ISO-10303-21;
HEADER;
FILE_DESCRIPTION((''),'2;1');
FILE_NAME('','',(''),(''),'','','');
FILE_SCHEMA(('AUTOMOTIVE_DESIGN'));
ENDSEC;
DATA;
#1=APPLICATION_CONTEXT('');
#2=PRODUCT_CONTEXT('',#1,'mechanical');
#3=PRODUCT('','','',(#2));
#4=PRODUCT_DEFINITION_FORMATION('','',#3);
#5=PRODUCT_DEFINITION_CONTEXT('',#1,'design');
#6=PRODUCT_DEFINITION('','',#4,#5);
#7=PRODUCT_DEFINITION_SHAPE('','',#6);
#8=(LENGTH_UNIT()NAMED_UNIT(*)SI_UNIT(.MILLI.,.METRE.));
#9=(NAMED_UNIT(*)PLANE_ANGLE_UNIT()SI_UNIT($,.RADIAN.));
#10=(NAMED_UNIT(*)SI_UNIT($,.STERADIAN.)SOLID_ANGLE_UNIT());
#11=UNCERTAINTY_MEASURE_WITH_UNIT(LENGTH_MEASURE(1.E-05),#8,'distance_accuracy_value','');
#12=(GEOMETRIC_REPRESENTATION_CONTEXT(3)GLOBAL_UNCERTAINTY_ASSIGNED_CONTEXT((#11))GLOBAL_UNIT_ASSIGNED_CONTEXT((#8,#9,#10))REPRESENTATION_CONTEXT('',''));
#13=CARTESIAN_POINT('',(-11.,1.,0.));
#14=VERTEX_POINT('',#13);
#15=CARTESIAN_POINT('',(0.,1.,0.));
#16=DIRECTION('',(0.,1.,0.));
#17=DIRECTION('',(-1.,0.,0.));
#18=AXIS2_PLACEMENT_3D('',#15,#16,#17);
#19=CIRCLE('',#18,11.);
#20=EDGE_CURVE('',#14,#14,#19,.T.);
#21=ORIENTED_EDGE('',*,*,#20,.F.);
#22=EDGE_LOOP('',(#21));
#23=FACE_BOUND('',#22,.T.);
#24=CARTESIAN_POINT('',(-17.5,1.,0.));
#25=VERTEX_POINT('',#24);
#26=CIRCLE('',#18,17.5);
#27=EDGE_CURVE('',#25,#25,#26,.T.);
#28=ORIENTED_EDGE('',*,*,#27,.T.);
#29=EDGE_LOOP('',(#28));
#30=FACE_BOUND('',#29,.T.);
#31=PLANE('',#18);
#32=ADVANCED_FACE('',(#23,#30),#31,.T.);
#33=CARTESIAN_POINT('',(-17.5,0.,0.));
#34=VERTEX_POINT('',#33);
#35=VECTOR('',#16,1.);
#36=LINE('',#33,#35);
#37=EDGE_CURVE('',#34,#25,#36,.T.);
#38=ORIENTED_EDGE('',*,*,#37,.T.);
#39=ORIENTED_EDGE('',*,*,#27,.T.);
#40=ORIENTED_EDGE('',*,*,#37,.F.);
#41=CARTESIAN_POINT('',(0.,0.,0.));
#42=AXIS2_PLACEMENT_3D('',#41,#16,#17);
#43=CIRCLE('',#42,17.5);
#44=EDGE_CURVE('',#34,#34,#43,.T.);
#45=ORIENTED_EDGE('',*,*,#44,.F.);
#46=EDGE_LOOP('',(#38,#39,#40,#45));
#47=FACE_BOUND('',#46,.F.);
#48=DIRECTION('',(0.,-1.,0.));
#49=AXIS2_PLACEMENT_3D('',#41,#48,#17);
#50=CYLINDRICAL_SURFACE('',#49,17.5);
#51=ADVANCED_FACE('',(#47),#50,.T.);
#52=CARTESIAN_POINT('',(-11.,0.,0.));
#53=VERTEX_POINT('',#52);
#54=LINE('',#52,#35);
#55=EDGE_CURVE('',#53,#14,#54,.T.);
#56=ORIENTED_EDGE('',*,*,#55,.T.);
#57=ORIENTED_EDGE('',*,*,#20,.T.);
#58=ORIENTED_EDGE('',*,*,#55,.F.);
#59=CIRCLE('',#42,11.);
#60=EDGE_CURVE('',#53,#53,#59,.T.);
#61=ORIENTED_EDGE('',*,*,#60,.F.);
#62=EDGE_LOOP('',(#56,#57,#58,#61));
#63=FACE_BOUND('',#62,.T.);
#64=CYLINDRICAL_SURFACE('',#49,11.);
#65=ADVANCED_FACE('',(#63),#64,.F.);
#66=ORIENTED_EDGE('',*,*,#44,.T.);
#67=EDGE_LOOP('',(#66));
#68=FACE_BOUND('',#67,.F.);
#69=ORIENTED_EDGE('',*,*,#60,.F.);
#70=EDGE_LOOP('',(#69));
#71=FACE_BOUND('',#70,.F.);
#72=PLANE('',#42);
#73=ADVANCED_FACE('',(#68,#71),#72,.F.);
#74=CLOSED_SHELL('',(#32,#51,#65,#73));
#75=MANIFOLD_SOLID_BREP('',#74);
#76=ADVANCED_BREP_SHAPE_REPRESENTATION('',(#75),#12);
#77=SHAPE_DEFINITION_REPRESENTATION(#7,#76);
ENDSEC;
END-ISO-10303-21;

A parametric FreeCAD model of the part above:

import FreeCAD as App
import Part
import Sketcher
Q = App.Units.Quantity

doc = App.newDocument("Part")
params = doc.addObject("Spreadsheet::Sheet", "Params")
for row, (alias, value) in enumerate([
    ("sketch1_diameter", "35 mm"),
    ("sketch1_diameter2", "22 mm"),
    ("pad1_length", "1 mm"),
], start=1):
    params.set(f"A{row}", alias)
    params.set(f"B{row}", "=" + value)
    params.setAlias(f"B{row}", alias)

body = doc.addObject("PartDesign::Body", "Body")

sketch1 = doc.addObject("Sketcher::SketchObject", "Sketch")
body.addObject(sketch1)
sketch1.AttachmentSupport = (doc.XZ_Plane, [""])
sketch1.MapMode = "FlatFace"
sketch1.addGeometry(Part.Circle(App.Vector(0, 0, 0), App.Vector(0, 0, 1), 18), False)
sketch1.addGeometry(Part.Circle(App.Vector(0, 0, 0), App.Vector(0, 0, 1), 11), False)
sketch1.addConstraint(Sketcher.Constraint("Coincident", 0, 3, -1, 1))
sketch1.addConstraint(Sketcher.Constraint("Coincident", 1, 3, -1, 1))
sketch1.addConstraint(Sketcher.Constraint("Diameter", 0, Q("35 mm")))
sketch1.addConstraint(Sketcher.Constraint("Diameter", 1, Q("22 mm")))
sketch1.setExpression("Constraints[2]", "Params.sketch1_diameter")
sketch1.setExpression("Constraints[3]", "Params.sketch1_diameter2")
pad1 = doc.addObject("PartDesign::Pad", "Pad")
body.addObject(pad1)
pad1.Profile = sketch1
pad1.setExpression("Length", "Params.pad1_length")
pad1.Reversed = True

doc.recompute()
